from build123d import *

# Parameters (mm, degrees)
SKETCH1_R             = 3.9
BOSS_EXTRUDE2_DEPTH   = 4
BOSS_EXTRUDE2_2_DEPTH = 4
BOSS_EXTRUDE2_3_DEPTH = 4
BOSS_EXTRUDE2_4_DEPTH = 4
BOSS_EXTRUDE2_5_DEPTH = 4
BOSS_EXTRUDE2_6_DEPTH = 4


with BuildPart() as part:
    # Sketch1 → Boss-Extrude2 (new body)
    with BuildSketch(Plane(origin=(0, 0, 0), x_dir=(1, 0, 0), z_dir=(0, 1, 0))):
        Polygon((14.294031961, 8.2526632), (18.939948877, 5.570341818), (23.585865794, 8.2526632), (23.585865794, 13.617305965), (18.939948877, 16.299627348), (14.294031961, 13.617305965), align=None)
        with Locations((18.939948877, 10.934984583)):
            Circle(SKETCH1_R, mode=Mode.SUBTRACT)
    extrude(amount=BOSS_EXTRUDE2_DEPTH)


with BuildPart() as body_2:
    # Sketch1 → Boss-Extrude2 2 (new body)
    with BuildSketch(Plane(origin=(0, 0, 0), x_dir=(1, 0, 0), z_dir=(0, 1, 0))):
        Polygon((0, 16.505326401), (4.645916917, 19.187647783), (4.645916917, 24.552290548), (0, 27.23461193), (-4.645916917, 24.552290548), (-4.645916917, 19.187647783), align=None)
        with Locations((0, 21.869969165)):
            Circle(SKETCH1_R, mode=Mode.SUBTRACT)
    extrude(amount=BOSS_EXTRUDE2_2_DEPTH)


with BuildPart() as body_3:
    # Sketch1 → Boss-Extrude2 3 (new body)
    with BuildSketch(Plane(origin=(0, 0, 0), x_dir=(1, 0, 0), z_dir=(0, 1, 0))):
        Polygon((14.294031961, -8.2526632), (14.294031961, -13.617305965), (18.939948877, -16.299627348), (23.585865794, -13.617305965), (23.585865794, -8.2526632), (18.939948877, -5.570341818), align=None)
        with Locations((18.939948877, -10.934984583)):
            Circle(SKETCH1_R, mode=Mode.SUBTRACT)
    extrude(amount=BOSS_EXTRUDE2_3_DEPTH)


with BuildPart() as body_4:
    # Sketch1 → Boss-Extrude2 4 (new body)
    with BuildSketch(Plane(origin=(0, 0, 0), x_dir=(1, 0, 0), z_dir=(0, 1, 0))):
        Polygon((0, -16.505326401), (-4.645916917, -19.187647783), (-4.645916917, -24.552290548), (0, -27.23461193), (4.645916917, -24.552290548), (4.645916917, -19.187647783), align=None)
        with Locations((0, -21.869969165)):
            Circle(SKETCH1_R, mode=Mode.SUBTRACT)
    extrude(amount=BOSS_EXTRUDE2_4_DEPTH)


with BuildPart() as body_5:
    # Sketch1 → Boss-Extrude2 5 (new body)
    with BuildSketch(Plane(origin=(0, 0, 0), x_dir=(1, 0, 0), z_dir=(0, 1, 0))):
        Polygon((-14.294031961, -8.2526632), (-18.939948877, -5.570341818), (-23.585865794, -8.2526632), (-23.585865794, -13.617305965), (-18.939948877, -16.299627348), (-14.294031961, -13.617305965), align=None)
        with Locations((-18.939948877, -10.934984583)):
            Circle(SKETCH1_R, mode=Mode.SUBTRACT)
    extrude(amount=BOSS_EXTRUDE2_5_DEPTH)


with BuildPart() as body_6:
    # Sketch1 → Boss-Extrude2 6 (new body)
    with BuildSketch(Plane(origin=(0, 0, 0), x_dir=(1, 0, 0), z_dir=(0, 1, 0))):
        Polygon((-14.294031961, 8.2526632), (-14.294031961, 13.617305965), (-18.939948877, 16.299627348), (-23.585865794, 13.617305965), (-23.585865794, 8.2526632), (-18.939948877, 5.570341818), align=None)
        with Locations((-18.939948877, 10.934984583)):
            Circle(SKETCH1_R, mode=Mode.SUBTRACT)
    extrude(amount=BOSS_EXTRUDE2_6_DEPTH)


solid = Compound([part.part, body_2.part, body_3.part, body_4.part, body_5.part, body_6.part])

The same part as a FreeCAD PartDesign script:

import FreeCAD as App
import Part
import Sketcher
Q = App.Units.Quantity

doc = App.newDocument("Part")
params = doc.addObject("Spreadsheet::Sheet", "Params")
for row, (alias, value) in enumerate([
    ("sketch1_diameter", "7.8 mm"),
    ("pad1_length", "4 mm"),
    ("sketch2_diameter", "7.8 mm"),
    ("pad2_length", "4 mm"),
    ("sketch3_diameter", "7.8 mm"),
    ("pad3_length", "4 mm"),
    ("sketch4_diameter", "7.8 mm"),
    ("pad4_length", "4 mm"),
    ("sketch5_diameter", "7.8 mm"),
    ("pad5_length", "4 mm"),
    ("sketch6_diameter", "7.8 mm"),
    ("pad6_length", "4 mm"),
], start=1):
    params.set(f"A{row}", alias)
    params.set(f"B{row}", "=" + value)
    params.setAlias(f"B{row}", alias)

body = doc.addObject("PartDesign::Body", "Body")

sketch1 = body.newObject("Sketcher::SketchObject", "Sketch")
sketch1.AttachmentSupport = (doc.getObject("XZ_Plane"), [""])
sketch1.MapMode = "FlatFace"
sketch1.addGeometry(Part.LineSegment(App.Vector(14.3, -8.3, 0), App.Vector(18.9, -5.6, 0)), False)
sketch1.addGeometry(Part.LineSegment(App.Vector(18.9, -5.6, 0), App.Vector(23.6, -8.3, 0)), False)
sketch1.addGeometry(Part.LineSegment(App.Vector(23.6, -8.3, 0), App.Vector(23.6, -13.6, 0)), False)
sketch1.addGeometry(Part.LineSegment(App.Vector(23.6, -13.6, 0), App.Vector(18.9, -16.3, 0)), False)
sketch1.addGeometry(Part.LineSegment(App.Vector(18.9, -16.3, 0), App.Vector(14.3, -13.6, 0)), False)
sketch1.addGeometry(Part.LineSegment(App.Vector(14.3, -13.6, 0), App.Vector(14.3, -8.3, 0)), False)
sketch1.addGeometry(Part.Circle(App.Vector(18.9, -10.9, 0), App.Vector(0, 0, 1), 3.9), False)
sketch1.addConstraint(Sketcher.Constraint("Coincident", 0, 2, 1, 1))
sketch1.addConstraint(Sketcher.Constraint("Coincident", 1, 2, 2, 1))
sketch1.addConstraint(Sketcher.Constraint("Coincident", 2, 2, 3, 1))
sketch1.addConstraint(Sketcher.Constraint("Coincident", 3, 2, 4, 1))
sketch1.addConstraint(Sketcher.Constraint("Coincident", 4, 2, 5, 1))
sketch1.addConstraint(Sketcher.Constraint("Coincident", 5, 2, 0, 1))
sketch1.addConstraint(Sketcher.Constraint("Vertical", 2))
sketch1.addConstraint(Sketcher.Constraint("Vertical", 5))
sketch1.addConstraint(Sketcher.Constraint("Parallel", 0, 3))
sketch1.addConstraint(Sketcher.Constraint("Parallel", 1, 4))
sketch1.addConstraint(Sketcher.Constraint("Horizontal", 2, 2, 4, 2))
sketch1.addConstraint(Sketcher.Constraint("Horizontal", 1, 2, 5, 2))
sketch1.addConstraint(Sketcher.Constraint("Vertical", 6, 3, 0, 2))
sketch1.addConstraint(Sketcher.Constraint("Vertical", 0, 2, 3, 2))
sketch1.addConstraint(Sketcher.Constraint("Diameter", 6, Q("7.8 mm")))
sketch1.addConstraint(Sketcher.Constraint("Angle", 0, Q("30 deg")))
sketch1.addConstraint(Sketcher.Constraint("DistanceY", 2, 2, 2, 1, Q("5.364643 mm")))
sketch1.addConstraint(Sketcher.Constraint("DistanceX", -1, 1, 6, 3, Q("18.939949 mm")))
sketch1.addConstraint(Sketcher.Constraint("DistanceY", 0, 2, -1, 1, Q("5.570342 mm")))
sketch1.addConstraint(Sketcher.Constraint("DistanceX", -1, 1, 4, 2, Q("14.294032 mm")))
sketch1.addConstraint(Sketcher.Constraint("DistanceY", 6, 3, 1, 2, Q("2.682321 mm")))
sketch1.setExpression("Constraints[14]", "Params.sketch1_diameter")
pad1 = body.newObject("PartDesign::Pad", "Pad")
pad1.Profile = sketch1
pad1.setExpression("Length", "Params.pad1_length")
pad1.Reversed = True
body2 = doc.addObject("PartDesign::Body", "Body001")

sketch2 = body2.newObject("Sketcher::SketchObject", "Sketch001")
sketch2.AttachmentSupport = (doc.getObject("XZ_Plane001"), [""])
sketch2.MapMode = "FlatFace"
sketch2.addGeometry(Part.LineSegment(App.Vector(0, -16.5, 0), App.Vector(4.6, -19.2, 0)), False)
sketch2.addGeometry(Part.LineSegment(App.Vector(4.6, -19.2, 0), App.Vector(4.6, -24.6, 0)), False)
sketch2.addGeometry(Part.LineSegment(App.Vector(4.6, -24.6, 0), App.Vector(0, -27.2, 0)), False)
sketch2.addGeometry(Part.LineSegment(App.Vector(0, -27.2, 0), App.Vector(-4.6, -24.6, 0)), False)
sketch2.addGeometry(Part.LineSegment(App.Vector(-4.6, -24.6, 0), App.Vector(-4.6, -19.2, 0)), False)
sketch2.addGeometry(Part.LineSegment(App.Vector(-4.6, -19.2, 0), App.Vector(0, -16.5, 0)), False)
sketch2.addGeometry(Part.Circle(App.Vector(0, -21.9, 0), App.Vector(0, 0, 1), 3.9), False)
sketch2.addConstraint(Sketcher.Constraint("Coincident", 0, 2, 1, 1))
sketch2.addConstraint(Sketcher.Constraint("Coincident", 1, 2, 2, 1))
sketch2.addConstraint(Sketcher.Constraint("Coincident", 2, 2, 3, 1))
sketch2.addConstraint(Sketcher.Constraint("Coincident", 3, 2, 4, 1))
sketch2.addConstraint(Sketcher.Constraint("Coincident", 4, 2, 5, 1))
sketch2.addConstraint(Sketcher.Constraint("Coincident", 5, 2, 0, 1))
sketch2.addConstraint(Sketcher.Constraint("Vertical", 1))
sketch2.addConstraint(Sketcher.Constraint("Vertical", 4))
sketch2.addConstraint(Sketcher.Constraint("Symmetric", 1, 2, 3, 2, -2))
sketch2.addConstraint(Sketcher.Constraint("PointOnObject", 6, 3, -2))
sketch2.addConstraint(Sketcher.Constraint("PointOnObject", 2, 2, -2))
sketch2.addConstraint(Sketcher.Constraint("PointOnObject", 5, 2, -2))
sketch2.addConstraint(Sketcher.Constraint("Parallel", 0, 3))
sketch2.addConstraint(Sketcher.Constraint("Parallel", 2, 5))
sketch2.addConstraint(Sketcher.Constraint("Diameter", 6, Q("7.8 mm")))
sketch2.addConstraint(Sketcher.Constraint("Angle", 0, Q("-30 deg")))
sketch2.addConstraint(Sketcher.Constraint("DistanceY", 1, 2, 1, 1, Q("5.364643 mm")))
sketch2.addConstraint(Sketcher.Constraint("DistanceY", 6, 3, -1, 1, Q("21.869969 mm")))
sketch2.addConstraint(Sketcher.Constraint("DistanceY", 1, 2, -1, 1, Q("24.552291 mm")))
sketch2.addConstraint(Sketcher.Constraint("DistanceY", 2, 2, -1, 1, Q("27.234612 mm")))
sketch2.setExpression("Constraints[14]", "Params.sketch2_diameter")
pad2 = body2.newObject("PartDesign::Pad", "Pad001")
pad2.Profile = sketch2
pad2.setExpression("Length", "Params.pad2_length")
pad2.Reversed = True
body3 = doc.addObject("PartDesign::Body", "Body002")

sketch3 = body3.newObject("Sketcher::SketchObject", "Sketch002")
sketch3.AttachmentSupport = (doc.getObject("XZ_Plane002"), [""])
sketch3.MapMode = "FlatFace"
sketch3.addGeometry(Part.LineSegment(App.Vector(14.3, 8.3, 0), App.Vector(14.3, 13.6, 0)), False)
sketch3.addGeometry(Part.LineSegment(App.Vector(14.3, 13.6, 0), App.Vector(18.9, 16.3, 0)), False)
sketch3.addGeometry(Part.LineSegment(App.Vector(18.9, 16.3, 0), App.Vector(23.6, 13.6, 0)), False)
sketch3.addGeometry(Part.LineSegment(App.Vector(23.6, 13.6, 0), App.Vector(23.6, 8.3, 0)), False)
sketch3.addGeometry(Part.LineSegment(App.Vector(23.6, 8.3, 0), App.Vector(18.9, 5.6, 0)), False)
sketch3.addGeometry(Part.LineSegment(App.Vector(18.9, 5.6, 0), App.Vector(14.3, 8.3, 0)), False)
sketch3.addGeometry(Part.Circle(App.Vector(18.9, 10.9, 0), App.Vector(0, 0, 1), 3.9), False)
sketch3.addConstraint(Sketcher.Constraint("Coincident", 0, 2, 1, 1))
sketch3.addConstraint(Sketcher.Constraint("Coincident", 1, 2, 2, 1))
sketch3.addConstraint(Sketcher.Constraint("Coincident", 2, 2, 3, 1))
sketch3.addConstraint(Sketcher.Constraint("Coincident", 3, 2, 4, 1))
sketch3.addConstraint(Sketcher.Constraint("Coincident", 4, 2, 5, 1))
sketch3.addConstraint(Sketcher.Constraint("Coincident", 5, 2, 0, 1))
sketch3.addConstraint(Sketcher.Constraint("Vertical", 0))
sketch3.addConstraint(Sketcher.Constraint("Vertical", 3))
sketch3.addConstraint(Sketcher.Constraint("Parallel", 1, 4))
sketch3.addConstraint(Sketcher.Constraint("Parallel", 2, 5))
sketch3.addConstraint(Sketcher.Constraint("Horizontal", 0, 2, 2, 2))
sketch3.addConstraint(Sketcher.Constraint("Horizontal", 3, 2, 5, 2))
sketch3.addConstraint(Sketcher.Constraint("Vertical", 6, 3, 1, 2))
sketch3.addConstraint(Sketcher.Constraint("Vertical", 1, 2, 4, 2))
sketch3.addConstraint(Sketcher.Constraint("Diameter", 6, Q("7.8 mm")))
sketch3.addConstraint(Sketcher.Constraint("Angle", 1, Q("30 deg")))
sketch3.addConstraint(Sketcher.Constraint("DistanceY", 0, 1, 0, 2, Q("5.364643 mm")))
sketch3.addConstraint(Sketcher.Constraint("DistanceX", -1, 1, 6, 3, Q("18.939949 mm")))
sketch3.addConstraint(Sketcher.Constraint("DistanceX", -1, 1, 0, 2, Q("14.294032 mm")))
sketch3.addConstraint(Sketcher.Constraint("DistanceY", -1, 1, 4, 2, Q("5.570342 mm")))
sketch3.addConstraint(Sketcher.Constraint("DistanceY", 6, 3, 0, 2, Q("2.682321 mm")))
sketch3.setExpression("Constraints[14]", "Params.sketch3_diameter")
pad3 = body3.newObject("PartDesign::Pad", "Pad002")
pad3.Profile = sketch3
pad3.setExpression("Length", "Params.pad3_length")
pad3.Reversed = True
body4 = doc.addObject("PartDesign::Body", "Body003")

sketch4 = body4.newObject("Sketcher::SketchObject", "Sketch003")
sketch4.AttachmentSupport = (doc.getObject("XZ_Plane003"), [""])
sketch4.MapMode = "FlatFace"
sketch4.addGeometry(Part.LineSegment(App.Vector(0, 16.5, 0), App.Vector(-4.6, 19.2, 0)), False)
sketch4.addGeometry(Part.LineSegment(App.Vector(-4.6, 19.2, 0), App.Vector(-4.6, 24.6, 0)), False)
sketch4.addGeometry(Part.LineSegment(App.Vector(-4.6, 24.6, 0), App.Vector(0, 27.2, 0)), False)
sketch4.addGeometry(Part.LineSegment(App.Vector(0, 27.2, 0), App.Vector(4.6, 24.6, 0)), False)
sketch4.addGeometry(Part.LineSegment(App.Vector(4.6, 24.6, 0), App.Vector(4.6, 19.2, 0)), False)
sketch4.addGeometry(Part.LineSegment(App.Vector(4.6, 19.2, 0), App.Vector(0, 16.5, 0)), False)
sketch4.addGeometry(Part.Circle(App.Vector(0, 21.9, 0), App.Vector(0, 0, 1), 3.9), False)
sketch4.addConstraint(Sketcher.Constraint("Coincident", 0, 2, 1, 1))
sketch4.addConstraint(Sketcher.Constraint("Coincident", 1, 2, 2, 1))
sketch4.addConstraint(Sketcher.Constraint("Coincident", 2, 2, 3, 1))
sketch4.addConstraint(Sketcher.Constraint("Coincident", 3, 2, 4, 1))
sketch4.addConstraint(Sketcher.Constraint("Coincident", 4, 2, 5, 1))
sketch4.addConstraint(Sketcher.Constraint("Coincident", 5, 2, 0, 1))
sketch4.addConstraint(Sketcher.Constraint("Vertical", 1))
sketch4.addConstraint(Sketcher.Constraint("Vertical", 4))
sketch4.addConstraint(Sketcher.Constraint("Symmetric", 1, 2, 3, 2, -2))
sketch4.addConstraint(Sketcher.Constraint("PointOnObject", 6, 3, -2))
sketch4.addConstraint(Sketcher.Constraint("PointOnObject", 2, 2, -2))
sketch4.addConstraint(Sketcher.Constraint("PointOnObject", 5, 2, -2))
sketch4.addConstraint(Sketcher.Constraint("Parallel", 0, 3))
sketch4.addConstraint(Sketcher.Constraint("Parallel", 2, 5))
sketch4.addConstraint(Sketcher.Constraint("Diameter", 6, Q("7.8 mm")))
sketch4.addConstraint(Sketcher.Constraint("Angle", 0, Q("150 deg")))
sketch4.addConstraint(Sketcher.Constraint("DistanceY", 1, 1, 1, 2, Q("5.364643 mm")))
sketch4.addConstraint(Sketcher.Constraint("DistanceY", -1, 1, 6, 3, Q("21.869969 mm")))
sketch4.addConstraint(Sketcher.Constraint("DistanceY", -1, 1, 1, 2, Q("24.552291 mm")))
sketch4.addConstraint(Sketcher.Constraint("DistanceY", -1, 1, 2, 2, Q("27.234612 mm")))
sketch4.setExpression("Constraints[14]", "Params.sketch4_diameter")
pad4 = body4.newObject("PartDesign::Pad", "Pad003")
pad4.Profile = sketch4
pad4.setExpression("Length", "Params.pad4_length")
pad4.Reversed = True
body5 = doc.addObject("PartDesign::Body", "Body004")

sketch5 = body5.newObject("Sketcher::SketchObject", "Sketch004")
sketch5.AttachmentSupport = (doc.getObject("XZ_Plane004"), [""])
sketch5.MapMode = "FlatFace"
sketch5.addGeometry(Part.LineSegment(App.Vector(-14.3, 8.3, 0), App.Vector(-18.9, 5.6, 0)), False)
sketch5.addGeometry(Part.LineSegment(App.Vector(-18.9, 5.6, 0), App.Vector(-23.6, 8.3, 0)), False)
sketch5.addGeometry(Part.LineSegment(App.Vector(-23.6, 8.3, 0), App.Vector(-23.6, 13.6, 0)), False)
sketch5.addGeometry(Part.LineSegment(App.Vector(-23.6, 13.6, 0), App.Vector(-18.9, 16.3, 0)), False)
sketch5.addGeometry(Part.LineSegment(App.Vector(-18.9, 16.3, 0), App.Vector(-14.3, 13.6, 0)), False)
sketch5.addGeometry(Part.LineSegment(App.Vector(-14.3, 13.6, 0), App.Vector(-14.3, 8.3, 0)), False)
sketch5.addGeometry(Part.Circle(App.Vector(-18.9, 10.9, 0), App.Vector(0, 0, 1), 3.9), False)
sketch5.addConstraint(Sketcher.Constraint("Coincident", 0, 2, 1, 1))
sketch5.addConstraint(Sketcher.Constraint("Coincident", 1, 2, 2, 1))
sketch5.addConstraint(Sketcher.Constraint("Coincident", 2, 2, 3, 1))
sketch5.addConstraint(Sketcher.Constraint("Coincident", 3, 2, 4, 1))
sketch5.addConstraint(Sketcher.Constraint("Coincident", 4, 2, 5, 1))
sketch5.addConstraint(Sketcher.Constraint("Coincident", 5, 2, 0, 1))
sketch5.addConstraint(Sketcher.Constraint("Vertical", 2))
sketch5.addConstraint(Sketcher.Constraint("Vertical", 5))
sketch5.addConstraint(Sketcher.Constraint("Parallel", 0, 3))
sketch5.addConstraint(Sketcher.Constraint("Parallel", 1, 4))
sketch5.addConstraint(Sketcher.Constraint("Horizontal", 2, 2, 4, 2))
sketch5.addConstraint(Sketcher.Constraint("Horizontal", 1, 2, 5, 2))
sketch5.addConstraint(Sketcher.Constraint("Vertical", 6, 3, 0, 2))
sketch5.addConstraint(Sketcher.Constraint("Vertical", 0, 2, 3, 2))
sketch5.addConstraint(Sketcher.Constraint("Diameter", 6, Q("7.8 mm")))
sketch5.addConstraint(Sketcher.Constraint("Angle", 0, Q("-150 deg")))
sketch5.addConstraint(Sketcher.Constraint("DistanceY", 2, 1, 2, 2, Q("5.364643 mm")))
sketch5.addConstraint(Sketcher.Constraint("DistanceX", 6, 3, -1, 1, Q("18.939949 mm")))
sketch5.addConstraint(Sketcher.Constraint("DistanceY", -1, 1, 0, 2, Q("5.570342 mm")))
sketch5.addConstraint(Sketcher.Constraint("DistanceX", 4, 2, -1, 1, Q("14.294032 mm")))
sketch5.addConstraint(Sketcher.Constraint("DistanceY", 1, 2, 6, 3, Q("2.682321 mm")))
sketch5.setExpression("Constraints[14]", "Params.sketch5_diameter")
pad5 = body5.newObject("PartDesign::Pad", "Pad004")
pad5.Profile = sketch5
pad5.setExpression("Length", "Params.pad5_length")
pad5.Reversed = True
body6 = doc.addObject("PartDesign::Body", "Body005")

sketch6 = body6.newObject("Sketcher::SketchObject", "Sketch005")
sketch6.AttachmentSupport = (doc.getObject("XZ_Plane005"), [""])
sketch6.MapMode = "FlatFace"
sketch6.addGeometry(Part.LineSegment(App.Vector(-14.3, -8.3, 0), App.Vector(-14.3, -13.6, 0)), False)
sketch6.addGeometry(Part.LineSegment(App.Vector(-14.3, -13.6, 0), App.Vector(-18.9, -16.3, 0)), False)
sketch6.addGeometry(Part.LineSegment(App.Vector(-18.9, -16.3, 0), App.Vector(-23.6, -13.6, 0)), False)
sketch6.addGeometry(Part.LineSegment(App.Vector(-23.6, -13.6, 0), App.Vector(-23.6, -8.3, 0)), False)
sketch6.addGeometry(Part.LineSegment(App.Vector(-23.6, -8.3, 0), App.Vector(-18.9, -5.6, 0)), False)
sketch6.addGeometry(Part.LineSegment(App.Vector(-18.9, -5.6, 0), App.Vector(-14.3, -8.3, 0)), False)
sketch6.addGeometry(Part.Circle(App.Vector(-18.9, -10.9, 0), App.Vector(0, 0, 1), 3.9), False)
sketch6.addConstraint(Sketcher.Constraint("Coincident", 0, 2, 1, 1))
sketch6.addConstraint(Sketcher.Constraint("Coincident", 1, 2, 2, 1))
sketch6.addConstraint(Sketcher.Constraint("Coincident", 2, 2, 3, 1))
sketch6.addConstraint(Sketcher.Constraint("Coincident", 3, 2, 4, 1))
sketch6.addConstraint(Sketcher.Constraint("Coincident", 4, 2, 5, 1))
sketch6.addConstraint(Sketcher.Constraint("Coincident", 5, 2, 0, 1))
sketch6.addConstraint(Sketcher.Constraint("Vertical", 0))
sketch6.addConstraint(Sketcher.Constraint("Vertical", 3))
sketch6.addConstraint(Sketcher.Constraint("Parallel", 1, 4))
sketch6.addConstraint(Sketcher.Constraint("Parallel", 2, 5))
sketch6.addConstraint(Sketcher.Constraint("Horizontal", 0, 2, 2, 2))
sketch6.addConstraint(Sketcher.Constraint("Horizontal", 3, 2, 5, 2))
sketch6.addConstraint(Sketcher.Constraint("Vertical", 6, 3, 1, 2))
sketch6.addConstraint(Sketcher.Constraint("Vertical", 1, 2, 4, 2))
sketch6.addConstraint(Sketcher.Constraint("Diameter", 6, Q("7.8 mm")))
sketch6.addConstraint(Sketcher.Constraint("Angle", 1, Q("-150 deg")))
sketch6.addConstraint(Sketcher.Constraint("DistanceY", 0, 2, 0, 1, Q("5.364643 mm")))
sketch6.addConstraint(Sketcher.Constraint("DistanceX", 6, 3, -1, 1, Q("18.939949 mm")))
sketch6.addConstraint(Sketcher.Constraint("DistanceX", 0, 2, -1, 1, Q("14.294032 mm")))
sketch6.addConstraint(Sketcher.Constraint("DistanceY", 4, 2, -1, 1, Q("5.570342 mm")))
sketch6.addConstraint(Sketcher.Constraint("DistanceY", 0, 2, 6, 3, Q("2.682321 mm")))
sketch6.setExpression("Constraints[14]", "Params.sketch6_diameter")
pad6 = body6.newObject("PartDesign::Pad", "Pad005")
pad6.Profile = sketch6
pad6.setExpression("Length", "Params.pad6_length")
pad6.Reversed = True

doc.recompute()
